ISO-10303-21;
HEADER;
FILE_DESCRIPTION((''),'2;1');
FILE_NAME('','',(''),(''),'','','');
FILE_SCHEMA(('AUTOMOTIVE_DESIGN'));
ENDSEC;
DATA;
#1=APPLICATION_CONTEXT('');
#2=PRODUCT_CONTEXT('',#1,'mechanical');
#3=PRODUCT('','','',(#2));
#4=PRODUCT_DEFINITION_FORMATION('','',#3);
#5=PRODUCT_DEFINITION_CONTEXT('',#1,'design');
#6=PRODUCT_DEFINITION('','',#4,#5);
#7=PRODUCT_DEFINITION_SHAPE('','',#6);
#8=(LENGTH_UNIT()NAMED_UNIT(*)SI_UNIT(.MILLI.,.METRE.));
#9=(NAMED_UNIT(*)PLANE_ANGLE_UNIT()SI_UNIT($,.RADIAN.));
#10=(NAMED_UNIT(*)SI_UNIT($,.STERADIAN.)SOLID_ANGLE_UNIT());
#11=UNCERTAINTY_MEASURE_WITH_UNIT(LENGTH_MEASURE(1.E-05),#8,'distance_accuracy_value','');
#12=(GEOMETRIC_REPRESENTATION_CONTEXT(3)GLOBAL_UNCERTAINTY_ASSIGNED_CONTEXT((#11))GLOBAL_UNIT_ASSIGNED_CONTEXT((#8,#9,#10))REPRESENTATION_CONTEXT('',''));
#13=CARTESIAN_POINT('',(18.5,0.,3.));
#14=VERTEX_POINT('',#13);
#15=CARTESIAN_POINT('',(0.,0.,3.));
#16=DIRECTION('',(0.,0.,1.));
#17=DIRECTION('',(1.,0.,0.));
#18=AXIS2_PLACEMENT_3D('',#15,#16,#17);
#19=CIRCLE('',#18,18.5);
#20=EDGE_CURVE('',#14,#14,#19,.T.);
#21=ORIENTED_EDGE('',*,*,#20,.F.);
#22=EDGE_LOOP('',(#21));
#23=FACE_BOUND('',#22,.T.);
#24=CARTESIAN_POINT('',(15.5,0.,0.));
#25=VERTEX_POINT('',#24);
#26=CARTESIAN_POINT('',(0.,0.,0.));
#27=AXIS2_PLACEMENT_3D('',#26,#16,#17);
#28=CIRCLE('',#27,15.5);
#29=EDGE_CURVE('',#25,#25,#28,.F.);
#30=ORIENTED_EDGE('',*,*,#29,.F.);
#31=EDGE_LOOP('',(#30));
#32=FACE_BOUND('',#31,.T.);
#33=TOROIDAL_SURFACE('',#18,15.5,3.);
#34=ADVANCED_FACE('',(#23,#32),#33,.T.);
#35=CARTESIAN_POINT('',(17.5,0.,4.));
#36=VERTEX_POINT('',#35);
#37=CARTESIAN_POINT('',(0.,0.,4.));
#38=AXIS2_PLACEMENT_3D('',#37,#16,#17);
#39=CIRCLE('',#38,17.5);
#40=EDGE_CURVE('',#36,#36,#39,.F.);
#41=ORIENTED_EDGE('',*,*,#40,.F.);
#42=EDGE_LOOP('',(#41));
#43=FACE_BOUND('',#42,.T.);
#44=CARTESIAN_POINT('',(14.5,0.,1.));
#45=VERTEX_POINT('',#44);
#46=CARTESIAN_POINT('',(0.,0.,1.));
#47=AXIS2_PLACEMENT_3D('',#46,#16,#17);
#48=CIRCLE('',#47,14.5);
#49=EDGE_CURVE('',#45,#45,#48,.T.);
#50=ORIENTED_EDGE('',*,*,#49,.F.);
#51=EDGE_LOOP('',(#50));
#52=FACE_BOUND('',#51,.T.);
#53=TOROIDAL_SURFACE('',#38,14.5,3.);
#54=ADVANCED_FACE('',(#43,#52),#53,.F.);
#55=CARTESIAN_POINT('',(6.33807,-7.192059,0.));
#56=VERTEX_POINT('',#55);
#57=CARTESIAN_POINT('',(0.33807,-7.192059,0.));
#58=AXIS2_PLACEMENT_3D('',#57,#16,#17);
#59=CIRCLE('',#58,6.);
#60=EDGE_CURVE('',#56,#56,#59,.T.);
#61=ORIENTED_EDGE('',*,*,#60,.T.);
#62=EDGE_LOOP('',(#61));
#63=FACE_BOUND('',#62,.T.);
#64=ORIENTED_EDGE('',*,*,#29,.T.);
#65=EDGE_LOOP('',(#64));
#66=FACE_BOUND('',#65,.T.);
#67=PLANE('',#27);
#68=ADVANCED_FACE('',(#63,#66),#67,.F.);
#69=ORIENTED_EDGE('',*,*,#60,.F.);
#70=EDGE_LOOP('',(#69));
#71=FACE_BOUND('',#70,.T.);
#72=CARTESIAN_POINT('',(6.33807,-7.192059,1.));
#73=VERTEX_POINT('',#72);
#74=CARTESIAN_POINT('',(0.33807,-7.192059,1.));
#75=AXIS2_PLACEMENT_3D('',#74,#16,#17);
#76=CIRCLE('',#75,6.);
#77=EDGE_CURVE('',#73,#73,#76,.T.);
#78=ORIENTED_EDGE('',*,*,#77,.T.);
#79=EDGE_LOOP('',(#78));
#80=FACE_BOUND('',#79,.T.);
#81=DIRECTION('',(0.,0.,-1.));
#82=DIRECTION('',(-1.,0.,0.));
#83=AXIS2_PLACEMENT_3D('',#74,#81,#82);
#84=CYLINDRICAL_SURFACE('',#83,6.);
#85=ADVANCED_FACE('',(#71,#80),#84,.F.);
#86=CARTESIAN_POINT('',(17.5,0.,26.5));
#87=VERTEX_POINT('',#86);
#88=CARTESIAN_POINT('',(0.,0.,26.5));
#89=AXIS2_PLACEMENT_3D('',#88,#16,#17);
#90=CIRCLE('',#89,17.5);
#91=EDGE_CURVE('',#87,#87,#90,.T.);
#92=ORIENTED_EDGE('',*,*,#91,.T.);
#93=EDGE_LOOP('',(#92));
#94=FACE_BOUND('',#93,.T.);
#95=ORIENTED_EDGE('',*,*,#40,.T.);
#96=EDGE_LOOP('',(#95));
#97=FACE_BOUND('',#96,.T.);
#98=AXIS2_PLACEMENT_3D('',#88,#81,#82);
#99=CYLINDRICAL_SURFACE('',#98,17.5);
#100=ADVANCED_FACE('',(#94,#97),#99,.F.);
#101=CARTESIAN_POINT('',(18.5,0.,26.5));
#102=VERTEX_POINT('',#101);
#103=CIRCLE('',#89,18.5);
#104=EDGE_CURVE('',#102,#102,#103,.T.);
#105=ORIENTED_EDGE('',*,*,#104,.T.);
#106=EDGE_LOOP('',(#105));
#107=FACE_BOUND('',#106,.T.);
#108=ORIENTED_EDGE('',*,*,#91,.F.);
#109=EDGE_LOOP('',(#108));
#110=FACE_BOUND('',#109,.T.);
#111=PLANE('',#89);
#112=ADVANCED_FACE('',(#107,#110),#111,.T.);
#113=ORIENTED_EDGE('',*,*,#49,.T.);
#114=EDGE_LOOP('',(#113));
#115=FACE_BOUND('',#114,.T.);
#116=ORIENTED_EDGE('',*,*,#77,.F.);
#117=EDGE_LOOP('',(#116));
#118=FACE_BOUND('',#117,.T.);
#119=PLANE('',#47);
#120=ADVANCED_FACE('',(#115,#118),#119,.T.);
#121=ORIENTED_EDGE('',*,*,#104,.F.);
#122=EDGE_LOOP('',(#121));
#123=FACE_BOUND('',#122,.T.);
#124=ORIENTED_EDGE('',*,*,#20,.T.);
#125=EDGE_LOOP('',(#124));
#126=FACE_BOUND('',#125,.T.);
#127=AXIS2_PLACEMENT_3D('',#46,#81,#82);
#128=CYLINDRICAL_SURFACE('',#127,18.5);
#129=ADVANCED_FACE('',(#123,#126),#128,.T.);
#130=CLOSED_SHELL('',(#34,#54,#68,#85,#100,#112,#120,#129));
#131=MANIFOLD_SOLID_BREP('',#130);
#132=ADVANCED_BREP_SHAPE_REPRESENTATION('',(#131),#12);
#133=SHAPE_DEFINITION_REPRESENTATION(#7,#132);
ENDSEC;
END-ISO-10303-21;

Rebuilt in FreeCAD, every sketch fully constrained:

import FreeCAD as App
import Part
import Sketcher

V = App.Vector


def edges_at(feature, points):
    """Names of the edges that pass closest to the given points."""
    edges = feature.Shape.Edges
    near = lambda p: min(range(len(edges)), key=lambda i: edges[i].distToShape(Part.Vertex(*p))[0])
    return sorted({f"Edge{near(p) + 1}" for p in points})

doc = App.newDocument("Part")
params = doc.addObject("Spreadsheet::Sheet", "Params")
for row, (alias, value) in enumerate([
    ("sketch1_diameter", "37 mm"),
    ("sketch1_diameter2", "12 mm"),
    ("pad1_length", "1 mm"),
    ("sketch2_diameter", "37 mm"),
    ("sketch2_diameter2", "35 mm"),
    ("pad2_length", "25.5 mm"),
    ("fillet_radius", "3 mm"),
], start=1):
    params.set(f"A{row}", alias)
    params.set(f"B{row}", "=" + value)
    params.setAlias(f"B{row}", alias)

body = doc.addObject("PartDesign::Body", "Body")

# Sketch on XY plane
sketch1 = doc.addObject("Sketcher::SketchObject", "Sketch")
body.addObject(sketch1)
sketch1.AttachmentSupport = (doc.XY_Plane, [""])
sketch1.MapMode = "FlatFace"
sketch1.addGeometry([
    Part.Circle(V(0, 0, 0), V(0, 0, 1), 18),
    Part.Circle(V(0, -7, 0), V(0, 0, 1), 6),
], False)
sketch1.addConstraint([
    Sketcher.Constraint("Coincident", 0, 3, -1, 1),
    Sketcher.Constraint("Diameter", 0, 37.0),
    Sketcher.Constraint("Diameter", 1, 12.0),
    Sketcher.Constraint("DistanceX", -1, 1, 1, 3, 0.33807),
    Sketcher.Constraint("DistanceY", 1, 3, -1, 1, 7.192059),
])
sketch1.setExpression("Constraints[1]", "Params.sketch1_diameter")
sketch1.setExpression("Constraints[2]", "Params.sketch1_diameter2")
pad1 = doc.addObject("PartDesign::Pad", "Pad")
body.addObject(pad1)
pad1.Profile = sketch1
pad1.setExpression("Length", "Params.pad1_length")

# Sketch on XY plane
sketch2 = doc.addObject("Sketcher::SketchObject", "Sketch001")
body.addObject(sketch2)
sketch2.AttachmentSupport = (doc.XY_Plane, [""])
sketch2.MapMode = "FlatFace"
sketch2.AttachmentOffset = App.Placement(V(0, 0, 1), App.Rotation())
sketch2.addGeometry([
    Part.Circle(V(0, 0, 0), V(0, 0, 1), 18),
    Part.Circle(V(0, 0, 0), V(0, 0, 1), 18),
], False)
sketch2.addConstraint([
    Sketcher.Constraint("Coincident", 0, 3, -1, 1),
    Sketcher.Constraint("Coincident", 1, 3, -1, 1),
    Sketcher.Constraint("Diameter", 0, 37.0),
    Sketcher.Constraint("Diameter", 1, 35.0),
])
sketch2.setExpression("Constraints[2]", "Params.sketch2_diameter")
sketch2.setExpression("Constraints[3]", "Params.sketch2_diameter2")
pad2 = doc.addObject("PartDesign::Pad", "Pad001")
body.addObject(pad2)
pad2.Profile = sketch2
pad2.setExpression("Length", "Params.pad2_length")
doc.recompute()

fillet = doc.addObject("PartDesign::Fillet", "Fillet")
body.addObject(fillet)
fillet.Base = (pad2, edges_at(pad2, [(-18.5, 0, 0), (-17.5, 0, 1)]))
fillet.setExpression("Radius", "Params.fillet_radius")

doc.recompute()
